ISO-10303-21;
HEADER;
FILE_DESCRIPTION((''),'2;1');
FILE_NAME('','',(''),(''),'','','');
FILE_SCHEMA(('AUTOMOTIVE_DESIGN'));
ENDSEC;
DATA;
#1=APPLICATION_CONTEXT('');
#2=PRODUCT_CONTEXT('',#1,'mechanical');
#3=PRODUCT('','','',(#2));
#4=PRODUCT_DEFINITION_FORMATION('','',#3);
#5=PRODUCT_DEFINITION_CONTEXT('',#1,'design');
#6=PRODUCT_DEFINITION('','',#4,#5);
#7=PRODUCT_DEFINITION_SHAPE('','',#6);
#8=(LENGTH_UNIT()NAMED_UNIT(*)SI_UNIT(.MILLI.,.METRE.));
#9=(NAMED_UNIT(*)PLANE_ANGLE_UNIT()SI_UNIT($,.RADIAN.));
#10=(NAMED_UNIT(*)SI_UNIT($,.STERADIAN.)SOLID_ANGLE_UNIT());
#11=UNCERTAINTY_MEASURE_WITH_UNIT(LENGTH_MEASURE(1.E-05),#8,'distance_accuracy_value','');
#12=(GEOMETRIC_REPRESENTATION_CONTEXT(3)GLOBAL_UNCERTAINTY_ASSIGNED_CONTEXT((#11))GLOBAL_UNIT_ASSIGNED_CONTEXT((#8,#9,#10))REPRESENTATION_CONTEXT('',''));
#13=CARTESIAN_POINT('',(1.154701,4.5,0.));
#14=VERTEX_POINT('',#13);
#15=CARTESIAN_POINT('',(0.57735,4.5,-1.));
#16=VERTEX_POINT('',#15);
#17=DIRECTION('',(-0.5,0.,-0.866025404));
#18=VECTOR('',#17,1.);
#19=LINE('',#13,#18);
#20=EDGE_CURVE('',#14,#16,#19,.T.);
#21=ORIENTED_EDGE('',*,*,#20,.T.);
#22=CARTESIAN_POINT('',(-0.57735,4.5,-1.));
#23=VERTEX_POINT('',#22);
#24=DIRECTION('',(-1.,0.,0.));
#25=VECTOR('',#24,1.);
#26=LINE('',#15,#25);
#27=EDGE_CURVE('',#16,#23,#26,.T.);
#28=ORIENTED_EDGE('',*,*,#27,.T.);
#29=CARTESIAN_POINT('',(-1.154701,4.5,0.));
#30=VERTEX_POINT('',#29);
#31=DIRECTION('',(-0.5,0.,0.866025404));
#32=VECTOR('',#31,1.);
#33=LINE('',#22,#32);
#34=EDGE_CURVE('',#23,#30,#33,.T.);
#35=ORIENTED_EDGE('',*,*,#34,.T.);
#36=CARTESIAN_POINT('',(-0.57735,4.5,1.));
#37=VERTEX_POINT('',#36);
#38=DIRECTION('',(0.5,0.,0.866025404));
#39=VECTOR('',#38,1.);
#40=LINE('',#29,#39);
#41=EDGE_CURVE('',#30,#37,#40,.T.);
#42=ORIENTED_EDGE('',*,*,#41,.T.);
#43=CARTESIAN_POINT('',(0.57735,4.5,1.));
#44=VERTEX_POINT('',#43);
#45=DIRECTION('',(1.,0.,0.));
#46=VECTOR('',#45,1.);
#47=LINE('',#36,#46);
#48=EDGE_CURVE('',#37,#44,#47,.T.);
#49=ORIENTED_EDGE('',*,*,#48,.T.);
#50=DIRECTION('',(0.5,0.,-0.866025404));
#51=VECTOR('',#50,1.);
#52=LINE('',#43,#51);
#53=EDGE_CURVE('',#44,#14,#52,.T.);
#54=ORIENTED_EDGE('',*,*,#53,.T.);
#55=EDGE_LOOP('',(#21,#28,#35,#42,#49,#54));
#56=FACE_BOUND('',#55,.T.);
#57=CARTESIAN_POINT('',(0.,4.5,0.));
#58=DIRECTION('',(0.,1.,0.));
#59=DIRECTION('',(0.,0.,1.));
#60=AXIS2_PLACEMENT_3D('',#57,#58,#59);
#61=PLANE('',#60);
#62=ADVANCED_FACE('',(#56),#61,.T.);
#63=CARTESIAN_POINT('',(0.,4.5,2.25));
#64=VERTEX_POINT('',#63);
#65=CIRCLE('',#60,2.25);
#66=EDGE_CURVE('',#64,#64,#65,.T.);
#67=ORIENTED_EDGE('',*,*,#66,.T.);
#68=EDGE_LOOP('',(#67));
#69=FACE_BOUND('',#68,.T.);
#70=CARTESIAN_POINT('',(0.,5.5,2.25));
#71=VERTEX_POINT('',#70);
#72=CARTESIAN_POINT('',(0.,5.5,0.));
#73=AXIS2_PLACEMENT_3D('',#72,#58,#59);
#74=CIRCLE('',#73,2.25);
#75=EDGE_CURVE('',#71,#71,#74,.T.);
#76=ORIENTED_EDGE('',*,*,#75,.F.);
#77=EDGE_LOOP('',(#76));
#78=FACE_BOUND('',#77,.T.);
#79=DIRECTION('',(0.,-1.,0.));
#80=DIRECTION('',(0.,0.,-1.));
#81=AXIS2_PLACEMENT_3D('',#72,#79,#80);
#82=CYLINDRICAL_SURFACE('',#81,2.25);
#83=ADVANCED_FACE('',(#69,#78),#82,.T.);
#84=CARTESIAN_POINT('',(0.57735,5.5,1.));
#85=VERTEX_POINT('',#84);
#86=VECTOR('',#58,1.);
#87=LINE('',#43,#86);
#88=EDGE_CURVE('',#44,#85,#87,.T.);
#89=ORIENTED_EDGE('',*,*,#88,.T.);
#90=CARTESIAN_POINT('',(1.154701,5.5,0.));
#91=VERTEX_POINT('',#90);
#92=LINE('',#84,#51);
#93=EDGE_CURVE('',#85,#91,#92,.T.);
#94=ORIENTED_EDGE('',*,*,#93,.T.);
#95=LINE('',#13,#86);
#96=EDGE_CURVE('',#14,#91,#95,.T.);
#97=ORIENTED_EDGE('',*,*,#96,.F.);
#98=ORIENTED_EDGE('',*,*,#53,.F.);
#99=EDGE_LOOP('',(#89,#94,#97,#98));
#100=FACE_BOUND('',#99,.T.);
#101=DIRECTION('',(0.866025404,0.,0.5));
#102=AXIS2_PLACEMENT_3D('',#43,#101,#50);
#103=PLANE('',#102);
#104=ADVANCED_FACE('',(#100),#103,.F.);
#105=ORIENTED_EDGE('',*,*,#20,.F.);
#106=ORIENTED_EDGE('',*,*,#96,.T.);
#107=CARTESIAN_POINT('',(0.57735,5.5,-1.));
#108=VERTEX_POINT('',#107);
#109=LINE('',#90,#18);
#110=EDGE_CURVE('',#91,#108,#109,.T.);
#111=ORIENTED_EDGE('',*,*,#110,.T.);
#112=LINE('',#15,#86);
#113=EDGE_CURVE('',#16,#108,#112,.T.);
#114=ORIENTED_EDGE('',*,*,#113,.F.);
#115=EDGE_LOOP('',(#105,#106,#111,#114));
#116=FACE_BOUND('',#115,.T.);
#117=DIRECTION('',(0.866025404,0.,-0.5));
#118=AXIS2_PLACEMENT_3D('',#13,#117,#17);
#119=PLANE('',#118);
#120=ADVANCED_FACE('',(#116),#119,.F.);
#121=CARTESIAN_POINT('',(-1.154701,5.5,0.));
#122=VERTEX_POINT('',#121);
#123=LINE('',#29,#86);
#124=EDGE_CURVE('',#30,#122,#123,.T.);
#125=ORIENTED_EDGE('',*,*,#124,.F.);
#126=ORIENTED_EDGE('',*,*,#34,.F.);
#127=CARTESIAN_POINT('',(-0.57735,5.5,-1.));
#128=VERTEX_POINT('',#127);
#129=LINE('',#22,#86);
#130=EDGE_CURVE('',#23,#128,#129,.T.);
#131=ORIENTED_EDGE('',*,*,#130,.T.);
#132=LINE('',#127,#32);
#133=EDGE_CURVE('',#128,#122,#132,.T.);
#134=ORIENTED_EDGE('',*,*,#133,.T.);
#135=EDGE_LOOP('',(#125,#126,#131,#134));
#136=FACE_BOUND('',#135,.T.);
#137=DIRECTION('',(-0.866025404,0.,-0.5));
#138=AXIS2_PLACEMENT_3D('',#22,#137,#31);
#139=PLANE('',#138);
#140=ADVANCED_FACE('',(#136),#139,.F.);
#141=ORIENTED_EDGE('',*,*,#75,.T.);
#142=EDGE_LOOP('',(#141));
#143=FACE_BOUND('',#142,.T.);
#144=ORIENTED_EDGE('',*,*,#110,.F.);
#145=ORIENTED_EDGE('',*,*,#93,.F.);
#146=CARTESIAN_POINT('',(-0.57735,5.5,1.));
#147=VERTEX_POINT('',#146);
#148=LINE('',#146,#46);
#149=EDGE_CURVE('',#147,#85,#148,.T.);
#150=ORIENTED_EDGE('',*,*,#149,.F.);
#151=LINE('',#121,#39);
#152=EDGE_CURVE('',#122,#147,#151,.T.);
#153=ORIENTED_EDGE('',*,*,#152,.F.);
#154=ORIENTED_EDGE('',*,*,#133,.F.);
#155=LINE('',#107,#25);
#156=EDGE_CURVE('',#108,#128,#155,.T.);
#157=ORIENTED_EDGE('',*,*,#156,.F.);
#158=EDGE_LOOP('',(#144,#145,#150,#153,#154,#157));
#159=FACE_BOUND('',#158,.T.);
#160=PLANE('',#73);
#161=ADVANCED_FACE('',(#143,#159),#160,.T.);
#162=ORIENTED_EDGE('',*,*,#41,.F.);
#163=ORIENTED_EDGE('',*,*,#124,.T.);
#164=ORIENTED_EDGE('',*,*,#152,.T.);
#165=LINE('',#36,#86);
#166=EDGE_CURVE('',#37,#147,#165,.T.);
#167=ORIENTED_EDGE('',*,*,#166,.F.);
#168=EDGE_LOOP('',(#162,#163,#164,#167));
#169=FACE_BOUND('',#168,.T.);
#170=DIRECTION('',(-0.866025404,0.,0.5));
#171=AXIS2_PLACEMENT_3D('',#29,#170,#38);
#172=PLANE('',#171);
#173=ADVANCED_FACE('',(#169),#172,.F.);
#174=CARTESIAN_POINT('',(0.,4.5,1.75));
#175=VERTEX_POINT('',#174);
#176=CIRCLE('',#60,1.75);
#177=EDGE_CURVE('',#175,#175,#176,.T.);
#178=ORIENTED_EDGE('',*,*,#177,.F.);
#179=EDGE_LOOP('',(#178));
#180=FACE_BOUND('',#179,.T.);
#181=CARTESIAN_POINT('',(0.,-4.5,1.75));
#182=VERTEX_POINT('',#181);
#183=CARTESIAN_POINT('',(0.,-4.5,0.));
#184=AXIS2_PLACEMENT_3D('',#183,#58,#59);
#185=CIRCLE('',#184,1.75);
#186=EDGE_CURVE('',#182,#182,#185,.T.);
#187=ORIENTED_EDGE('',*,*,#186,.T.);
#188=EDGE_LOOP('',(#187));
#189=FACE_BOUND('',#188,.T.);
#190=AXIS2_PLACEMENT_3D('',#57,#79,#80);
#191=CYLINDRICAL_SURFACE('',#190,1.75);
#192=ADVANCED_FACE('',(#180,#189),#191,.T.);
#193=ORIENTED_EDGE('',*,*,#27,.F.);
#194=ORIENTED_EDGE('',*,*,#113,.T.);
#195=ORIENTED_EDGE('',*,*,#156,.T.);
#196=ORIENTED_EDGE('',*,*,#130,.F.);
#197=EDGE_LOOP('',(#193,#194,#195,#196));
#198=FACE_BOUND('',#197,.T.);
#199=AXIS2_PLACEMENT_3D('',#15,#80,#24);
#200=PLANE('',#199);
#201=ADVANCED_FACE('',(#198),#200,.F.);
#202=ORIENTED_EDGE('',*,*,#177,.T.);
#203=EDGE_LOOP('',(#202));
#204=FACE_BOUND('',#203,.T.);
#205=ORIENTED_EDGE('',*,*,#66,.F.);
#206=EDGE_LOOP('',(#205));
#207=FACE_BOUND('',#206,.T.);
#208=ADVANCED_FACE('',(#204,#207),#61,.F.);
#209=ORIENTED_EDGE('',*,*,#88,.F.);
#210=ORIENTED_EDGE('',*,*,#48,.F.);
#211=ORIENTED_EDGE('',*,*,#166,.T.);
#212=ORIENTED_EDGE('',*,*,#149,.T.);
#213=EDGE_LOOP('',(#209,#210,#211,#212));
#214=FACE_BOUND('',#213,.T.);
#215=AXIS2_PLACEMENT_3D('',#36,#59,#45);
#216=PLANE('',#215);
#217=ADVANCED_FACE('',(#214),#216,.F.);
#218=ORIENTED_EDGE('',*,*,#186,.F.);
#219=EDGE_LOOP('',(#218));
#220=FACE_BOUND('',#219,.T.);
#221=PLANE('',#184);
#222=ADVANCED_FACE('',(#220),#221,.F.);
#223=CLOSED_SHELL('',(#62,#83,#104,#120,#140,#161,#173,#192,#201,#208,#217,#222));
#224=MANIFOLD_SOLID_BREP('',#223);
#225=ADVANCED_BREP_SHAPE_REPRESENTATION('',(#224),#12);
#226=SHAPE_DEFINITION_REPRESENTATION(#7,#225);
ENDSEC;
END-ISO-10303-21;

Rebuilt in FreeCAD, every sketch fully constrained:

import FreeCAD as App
import Part
import Sketcher
from FreeCAD import Vector
Q = App.Units.Quantity


def add_polygon(sketch, points):
    """Adds a closed chain of lines whose ends are joined by coincident constraints."""
    first, n = sketch.GeometryCount, len(points)
    for a, b in zip(points, points[1:] + points[:1]):
        sketch.addGeometry(Part.LineSegment(App.Vector(*a, 0), App.Vector(*b, 0)), False)
    for i in range(n):
        sketch.addConstraint(Sketcher.Constraint("Coincident", first + i, 2, first + (i + 1) % n, 1))

doc = App.newDocument("Part")
body = doc.addObject("PartDesign::Body", "Body")

# Sketch on XZ plane
sketch1 = doc.addObject("Sketcher::SketchObject", "Sketch")
body.addObject(sketch1)
sketch1.AttachmentSupport = (doc.XZ_Plane, [""])
sketch1.MapMode = "FlatFace"
sketch1.addGeometry(Part.Circle(Vector(0, 0, 0), Vector(0, 0, 1), 1.75), False)
sketch1.addConstraint(Sketcher.Constraint("Coincident", 0, 3, -1, 1))
sketch1.addConstraint(Sketcher.Constraint("Diameter", 0, 3.5))
pad1 = doc.addObject("PartDesign::Pad", "Pad")
body.addObject(pad1)
pad1.Profile = sketch1
pad1.Length = 9
pad1.Midplane = True

# Sketch on XZ plane
sketch2 = doc.addObject("Sketcher::SketchObject", "Sketch001")
body.addObject(sketch2)
sketch2.AttachmentSupport = (doc.XZ_Plane, [""])
sketch2.MapMode = "FlatFace"
sketch2.AttachmentOffset = App.Placement(Vector(0, 0, -4.5), App.Rotation())
sketch2.addGeometry(Part.Circle(Vector(0, 0, 0), Vector(0, 0, 1), 2.25), False)
sketch2.addConstraint(Sketcher.Constraint("Coincident", 0, 3, -1, 1))
sketch2.addConstraint(Sketcher.Constraint("Diameter", 0, 4.5))
pad2 = doc.addObject("PartDesign::Pad", "Pad001")
body.addObject(pad2)
pad2.Profile = sketch2
pad2.Length = 1
pad2.Reversed = True

# Sketch on XZ plane
sketch3 = doc.addObject("Sketcher::SketchObject", "Sketch002")
body.addObject(sketch3)
sketch3.AttachmentSupport = (doc.XZ_Plane, [""])
sketch3.MapMode = "FlatFace"
sketch3.AttachmentOffset = App.Placement(Vector(0, 0, -5.5), App.Rotation())
add_polygon(sketch3, [(1.154701, 0), (0.57735, -1), (-0.57735, -1), (-1.154701, 0), (-0.57735, 1), (0.57735, 1)])  # lines 0-5
sketch3.addConstraint(Sketcher.Constraint("Horizontal", 1))
sketch3.addConstraint(Sketcher.Constraint("Horizontal", 4))
sketch3.addConstraint(Sketcher.Constraint("Symmetric", 0, 2, 3, 2, -1, 1))
sketch3.addConstraint(Sketcher.Constraint("Symmetric", 2, 2, 5, 2, -1, 1))
sketch3.addConstraint(Sketcher.Constraint("PointOnObject", 2, 2, -1))
sketch3.addConstraint(Sketcher.Constraint("Parallel", 2, 5))
sketch3.addConstraint(Sketcher.Constraint("Vertical", 1, 2, 3, 2))
sketch3.addConstraint(Sketcher.Constraint("Angle", 0, Q("-120 deg")))
sketch3.addConstraint(Sketcher.Constraint("DistanceY", 0, 2, -1, 1, 1.0))
sketch3.addConstraint(Sketcher.Constraint("DistanceX", 1, 2, 1, 1, 1.154701))
pocket1 = doc.addObject("PartDesign::Pocket", "Pocket")
body.addObject(pocket1)
pocket1.Profile = sketch3
pocket1.Length = 1
pocket1.Reversed = True

doc.recompute()
